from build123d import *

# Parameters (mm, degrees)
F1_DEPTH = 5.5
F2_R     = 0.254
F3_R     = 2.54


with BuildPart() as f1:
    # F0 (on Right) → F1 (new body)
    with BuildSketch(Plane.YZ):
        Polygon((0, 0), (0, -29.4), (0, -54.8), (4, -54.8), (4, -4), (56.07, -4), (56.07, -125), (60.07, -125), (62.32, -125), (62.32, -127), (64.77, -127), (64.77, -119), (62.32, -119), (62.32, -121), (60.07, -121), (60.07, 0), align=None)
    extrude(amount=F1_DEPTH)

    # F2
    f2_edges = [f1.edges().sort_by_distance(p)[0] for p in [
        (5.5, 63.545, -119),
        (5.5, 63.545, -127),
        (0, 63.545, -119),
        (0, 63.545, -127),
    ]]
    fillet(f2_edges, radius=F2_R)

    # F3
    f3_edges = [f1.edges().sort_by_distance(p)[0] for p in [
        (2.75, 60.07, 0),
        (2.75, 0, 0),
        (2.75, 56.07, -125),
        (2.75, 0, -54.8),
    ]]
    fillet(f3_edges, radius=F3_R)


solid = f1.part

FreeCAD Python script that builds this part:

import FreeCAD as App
import Part
import Sketcher


def edges_at(feature, points):
    """Names of the edges that pass closest to the given points."""
    edges = feature.Shape.Edges
    near = lambda p: min(range(len(edges)), key=lambda i: edges[i].distToShape(Part.Vertex(*p))[0])
    return sorted({f"Edge{near(p) + 1}" for p in points})

doc = App.newDocument("Part")
body = doc.addObject("PartDesign::Body", "Body")

sketch1 = body.newObject("Sketcher::SketchObject", "Sketch")
sketch1.AttachmentSupport = (doc.getObject("YZ_Plane"), [""])
sketch1.MapMode = "FlatFace"
sketch1.addGeometry([
    Part.LineSegment(App.Vector(0, 0, 0), App.Vector(0, -54.8, 0)),
    Part.LineSegment(App.Vector(0, -54.8, 0), App.Vector(4, -54.8, 0)),
    Part.LineSegment(App.Vector(4, -54.8, 0), App.Vector(4, -4, 0)),
    Part.LineSegment(App.Vector(4, -4, 0), App.Vector(56.1, -4, 0)),
    Part.LineSegment(App.Vector(56.1, -4, 0), App.Vector(56.1, -125, 0)),
    Part.LineSegment(App.Vector(56.1, -125, 0), App.Vector(62.3, -125, 0)),
    Part.LineSegment(App.Vector(62.3, -125, 0), App.Vector(62.3, -127, 0)),
    Part.LineSegment(App.Vector(62.3, -127, 0), App.Vector(64.8, -127, 0)),
    Part.LineSegment(App.Vector(64.8, -127, 0), App.Vector(64.8, -119, 0)),
    Part.LineSegment(App.Vector(64.8, -119, 0), App.Vector(62.3, -119, 0)),
    Part.LineSegment(App.Vector(62.3, -119, 0), App.Vector(62.3, -121, 0)),
    Part.LineSegment(App.Vector(62.3, -121, 0), App.Vector(60.1, -121, 0)),
    Part.LineSegment(App.Vector(60.1, -121, 0), App.Vector(60.1, 0, 0)),
    Part.LineSegment(App.Vector(60.1, 0, 0), App.Vector(0, 0, 0)),
], False)
sketch1.addConstraint([
    Sketcher.Constraint("Coincident", 0, 2, 1, 1),
    Sketcher.Constraint("Coincident", 1, 2, 2, 1),
    Sketcher.Constraint("Coincident", 2, 2, 3, 1),
    Sketcher.Constraint("Coincident", 3, 2, 4, 1),
    Sketcher.Constraint("Coincident", 4, 2, 5, 1),
    Sketcher.Constraint("Coincident", 5, 2, 6, 1),
    Sketcher.Constraint("Coincident", 6, 2, 7, 1),
    Sketcher.Constraint("Coincident", 7, 2, 8, 1),
    Sketcher.Constraint("Coincident", 8, 2, 9, 1),
    Sketcher.Constraint("Coincident", 9, 2, 10, 1),
    Sketcher.Constraint("Coincident", 10, 2, 11, 1),
    Sketcher.Constraint("Coincident", 11, 2, 12, 1),
    Sketcher.Constraint("Coincident", 12, 2, 13, 1),
    Sketcher.Constraint("Coincident", 13, 2, 0, 1),
    Sketcher.Constraint("Vertical", 0),
    Sketcher.Constraint("Horizontal", 1),
    Sketcher.Constraint("Vertical", 2),
    Sketcher.Constraint("Horizontal", 3),
    Sketcher.Constraint("Vertical", 4),
    Sketcher.Constraint("Horizontal", 5),
    Sketcher.Constraint("Vertical", 6),
    Sketcher.Constraint("Horizontal", 7),
    Sketcher.Constraint("Vertical", 8),
    Sketcher.Constraint("Horizontal", 9),
    Sketcher.Constraint("Vertical", 10),
    Sketcher.Constraint("Horizontal", 11),
    Sketcher.Constraint("Vertical", 12),
    Sketcher.Constraint("Horizontal", 13),
    Sketcher.Constraint("Coincident", 13, 2, -1, 1),
    Sketcher.Constraint("Vertical", 6, 2, 9, 2),
    Sketcher.Constraint("Equal", 6, 10),
    Sketcher.Constraint("Equal", 4, 12),
    Sketcher.Constraint("DistanceX", 1, 1, 1, 2, 4.0),
    Sketcher.Constraint("DistanceY", 4, 2, 4, 1, 121.0),
    Sketcher.Constraint("DistanceY", 6, 2, 6, 1, 2.0),
    Sketcher.Constraint("DistanceY", 8, 1, 8, 2, 8.0),
    Sketcher.Constraint("DistanceY", 0, 2, 0, 1, 54.8),
    Sketcher.Constraint("DistanceX", 4, 2, 11, 2, 4.0),
    Sketcher.Constraint("DistanceX", 3, 1, 3, 2, 52.07),
    Sketcher.Constraint("DistanceX", 5, 1, 5, 2, 6.25),
    Sketcher.Constraint("DistanceX", 7, 1, 7, 2, 2.45),
])
pad1 = body.newObject("PartDesign::Pad", "Pad")
pad1.Profile = sketch1
pad1.Length = 5.5
doc.recompute()

fillet = body.newObject("PartDesign::Fillet", "Fillet")
fillet.Base = (pad1, edges_at(pad1, [
    (5.5, 63.545, -119),
    (5.5, 63.545, -127),
    (0, 63.545, -119),
    (0, 63.545, -127),
]))
fillet.Radius = 0.254
doc.recompute()

fillet2 = body.newObject("PartDesign::Fillet", "Fillet001")
fillet2.Base = (fillet, edges_at(fillet, [
    (2.75, 60.07, 0),
    (2.75, 0, 0),
    (2.75, 56.07, -125),
    (2.75, 0, -54.8),
]))
fillet2.Radius = 2.54

doc.recompute()
